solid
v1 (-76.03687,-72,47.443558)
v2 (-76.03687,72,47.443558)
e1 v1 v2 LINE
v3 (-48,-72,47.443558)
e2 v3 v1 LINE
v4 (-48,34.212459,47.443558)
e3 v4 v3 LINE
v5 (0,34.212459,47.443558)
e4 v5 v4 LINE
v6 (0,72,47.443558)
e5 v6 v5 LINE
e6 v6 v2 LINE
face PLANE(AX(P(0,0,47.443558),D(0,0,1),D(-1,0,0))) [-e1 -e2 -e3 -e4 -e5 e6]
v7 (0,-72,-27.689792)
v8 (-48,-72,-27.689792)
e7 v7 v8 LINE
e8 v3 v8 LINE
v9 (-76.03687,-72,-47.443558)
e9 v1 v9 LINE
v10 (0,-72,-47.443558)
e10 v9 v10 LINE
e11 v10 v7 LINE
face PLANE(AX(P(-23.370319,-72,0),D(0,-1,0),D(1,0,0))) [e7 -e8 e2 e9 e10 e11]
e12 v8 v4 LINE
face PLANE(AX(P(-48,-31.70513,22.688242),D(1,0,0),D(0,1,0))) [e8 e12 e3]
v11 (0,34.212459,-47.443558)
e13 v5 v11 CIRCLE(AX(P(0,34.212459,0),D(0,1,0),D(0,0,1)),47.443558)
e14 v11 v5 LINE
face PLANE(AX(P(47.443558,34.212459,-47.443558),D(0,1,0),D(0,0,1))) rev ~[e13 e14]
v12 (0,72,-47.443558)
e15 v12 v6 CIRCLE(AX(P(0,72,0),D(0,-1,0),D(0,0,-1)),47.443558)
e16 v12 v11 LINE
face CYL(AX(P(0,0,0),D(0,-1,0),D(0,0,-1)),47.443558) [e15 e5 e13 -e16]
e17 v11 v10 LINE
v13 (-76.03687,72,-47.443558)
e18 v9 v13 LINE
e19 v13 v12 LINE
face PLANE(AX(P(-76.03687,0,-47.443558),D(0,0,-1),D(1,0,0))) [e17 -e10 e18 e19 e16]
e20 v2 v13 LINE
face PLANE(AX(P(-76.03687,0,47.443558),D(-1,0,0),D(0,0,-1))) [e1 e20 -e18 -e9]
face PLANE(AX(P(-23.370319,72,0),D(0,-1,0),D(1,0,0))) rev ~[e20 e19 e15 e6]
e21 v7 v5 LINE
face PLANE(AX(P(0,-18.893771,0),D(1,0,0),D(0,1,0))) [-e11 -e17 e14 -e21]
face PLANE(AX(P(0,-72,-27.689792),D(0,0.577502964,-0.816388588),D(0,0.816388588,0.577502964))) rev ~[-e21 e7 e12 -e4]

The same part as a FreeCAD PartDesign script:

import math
import FreeCAD as App
import Part
import Sketcher
from FreeCAD import Vector

doc = App.newDocument("Part")
body = doc.addObject("PartDesign::Body", "Body")

# Sketch on XZ plane
sketch1 = body.newObject("Sketcher::SketchObject", "Sketch")
sketch1.AttachmentSupport = (doc.getObject("XZ_Plane"), [""])
sketch1.MapMode = "FlatFace"
sketch1.addGeometry([
    Part.LineSegment(Vector(-76, -47, 0), Vector(0, -47, 0)),
    Part.ArcOfCircle(Part.Circle(Vector(0, 0, 0), Vector(0, 0, 1), 47), math.radians(-90), math.radians(90)),
    Part.LineSegment(Vector(0, 47, 0), Vector(-76, 47, 0)),
    Part.LineSegment(Vector(-76, 47, 0), Vector(-76, -47, 0)),
], False)
sketch1.addConstraint([
    Sketcher.Constraint("Tangent", 0, 2, 1, 1),
    Sketcher.Constraint("Tangent", 1, 2, 2, 1),
    Sketcher.Constraint("Coincident", 2, 2, 3, 1),
    Sketcher.Constraint("Coincident", 3, 2, 0, 1),
    Sketcher.Constraint("Horizontal", 0),
    Sketcher.Constraint("Horizontal", 2),
    Sketcher.Constraint("Vertical", 3),
    Sketcher.Constraint("Coincident", 1, 3, -1, 1),
    Sketcher.Constraint("Radius", 1, 47.443558),
    Sketcher.Constraint("DistanceX", 0, 1, 0, 2, 76.03687),
])
pad1 = body.newObject("PartDesign::Pad", "Pad")
pad1.Profile = sketch1
pad1.Length = 144
pad1.Midplane = True

# Sketch on YZ plane
sketch2 = body.newObject("Sketcher::SketchObject", "Sketch001")
sketch2.AttachmentSupport = (doc.getObject("YZ_Plane"), [""])
sketch2.MapMode = "FlatFace"
sketch2.AttachmentOffset = App.Placement(Vector(0, 0, 47.443558), App.Rotation())
sketch2.addGeometry([
    Part.LineSegment(Vector(-72, 47, 0), Vector(-72, -47, 0)),
    Part.LineSegment(Vector(-72, -47, 0), Vector(34, -47, 0)),
    Part.LineSegment(Vector(34, -47, 0), Vector(34, 47, 0)),
    Part.LineSegment(Vector(34, 47, 0), Vector(-72, 47, 0)),
], False)
sketch2.addConstraint([
    Sketcher.Constraint("Coincident", 0, 2, 1, 1),
    Sketcher.Constraint("Coincident", 1, 2, 2, 1),
    Sketcher.Constraint("Coincident", 2, 2, 3, 1),
    Sketcher.Constraint("Coincident", 3, 2, 0, 1),
    Sketcher.Constraint("Vertical", 0),
    Sketcher.Constraint("Horizontal", 1),
    Sketcher.Constraint("Vertical", 2),
    Sketcher.Constraint("Horizontal", 3),
    Sketcher.Constraint("DistanceX", 0, 2, -1, 1, 72.0),
    Sketcher.Constraint("DistanceX", 1, 1, 1, 2, 106.212459),
    Sketcher.Constraint("DistanceY", 0, 2, 0, 1, 94.887116),
    Sketcher.Constraint("DistanceY", 0, 2, -1, 1, 47.443558),
])
pocket1 = body.newObject("PartDesign::Pocket", "Pocket")
pocket1.Profile = sketch2
pocket1.Length = 47.443558

# Sketch on YZ plane
sketch3 = body.newObject("Sketcher::SketchObject", "Sketch002")
sketch3.AttachmentSupport = (doc.getObject("YZ_Plane"), [""])
sketch3.MapMode = "FlatFace"
sketch3.addGeometry([
    Part.LineSegment(Vector(-72, -28, 0), Vector(34, 47, 0)),
    Part.LineSegment(Vector(34, 47, 0), Vector(-72, 47, 0)),
    Part.LineSegment(Vector(-72, 47, 0), Vector(-72, -28, 0)),
], False)
sketch3.addConstraint([
    Sketcher.Constraint("Coincident", 0, 2, 1, 1),
    Sketcher.Constraint("Coincident", 1, 2, 2, 1),
    Sketcher.Constraint("Coincident", 2, 2, 0, 1),
    Sketcher.Constraint("Horizontal", 1),
    Sketcher.Constraint("Vertical", 2),
    Sketcher.Constraint("DistanceX", 1, 2, -1, 1, 72.0),
    Sketcher.Constraint("DistanceX", 1, 2, 1, 1, 106.212459),
    Sketcher.Constraint("DistanceY", 2, 2, 2, 1, 75.13335),
    Sketcher.Constraint("DistanceY", -1, 1, 0, 2, 47.443558),
])
pocket2 = body.newObject("PartDesign::Pocket", "Pocket001")
pocket2.Profile = sketch3
pocket2.Length = 48

doc.recompute()
